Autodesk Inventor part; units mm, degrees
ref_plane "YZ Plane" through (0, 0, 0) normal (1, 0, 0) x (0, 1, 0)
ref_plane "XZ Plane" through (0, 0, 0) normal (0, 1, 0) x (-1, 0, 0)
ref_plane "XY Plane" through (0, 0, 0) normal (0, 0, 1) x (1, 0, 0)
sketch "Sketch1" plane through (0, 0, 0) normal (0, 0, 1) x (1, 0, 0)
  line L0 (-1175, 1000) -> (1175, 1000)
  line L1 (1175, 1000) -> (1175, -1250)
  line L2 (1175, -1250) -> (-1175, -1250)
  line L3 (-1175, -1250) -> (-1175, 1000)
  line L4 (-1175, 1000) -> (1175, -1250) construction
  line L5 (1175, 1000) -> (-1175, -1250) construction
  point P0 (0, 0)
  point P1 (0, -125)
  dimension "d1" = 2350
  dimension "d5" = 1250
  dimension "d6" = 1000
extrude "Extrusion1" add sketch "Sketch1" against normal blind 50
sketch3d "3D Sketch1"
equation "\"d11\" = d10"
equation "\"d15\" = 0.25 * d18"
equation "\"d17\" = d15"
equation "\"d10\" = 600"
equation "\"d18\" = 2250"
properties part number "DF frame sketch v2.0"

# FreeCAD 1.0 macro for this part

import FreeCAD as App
import Part
import Sketcher
from FreeCAD import Vector


def add_polygon(sketch, points):
    """Adds a closed chain of lines whose ends are joined by coincident constraints."""
    first, n = sketch.GeometryCount, len(points)
    for a, b in zip(points, points[1:] + points[:1]):
        sketch.addGeometry(Part.LineSegment(App.Vector(*a, 0), App.Vector(*b, 0)), False)
    for i in range(n):
        sketch.addConstraint(Sketcher.Constraint("Coincident", first + i, 2, first + (i + 1) % n, 1))

doc = App.newDocument("Part")
body = doc.addObject("PartDesign::Body", "Body")

sketch1 = body.newObject("Sketcher::SketchObject", "Sketch")
sketch1.AttachmentSupport = (doc.getObject("XY_Plane"), [""])
sketch1.MapMode = "FlatFace"
add_polygon(sketch1, [(1175, 1000), (-1175, 1000), (-1175, -1250), (1175, -1250)])
sketch1.addConstraint([
    Sketcher.Constraint("Horizontal", 0),
    Sketcher.Constraint("Vertical", 1),
    Sketcher.Constraint("Horizontal", 2),
    Sketcher.Constraint("Vertical", 3),
    Sketcher.Constraint("DistanceX", 0, 2, 0, 1, 2350.0),
    Sketcher.Constraint("DistanceY", -1, 1, 0, 2, 1000.0),
    Sketcher.Constraint("DistanceY", 1, 2, -1, 1, 1250.0),
    Sketcher.Constraint("DistanceX", 0, 2, -1, 1, 1175.0),
])
pad1 = body.newObject("PartDesign::Pad", "Pad")
pad1.Profile = sketch1
pad1.Length = 50
pad1.Reversed = True

doc.recompute()
